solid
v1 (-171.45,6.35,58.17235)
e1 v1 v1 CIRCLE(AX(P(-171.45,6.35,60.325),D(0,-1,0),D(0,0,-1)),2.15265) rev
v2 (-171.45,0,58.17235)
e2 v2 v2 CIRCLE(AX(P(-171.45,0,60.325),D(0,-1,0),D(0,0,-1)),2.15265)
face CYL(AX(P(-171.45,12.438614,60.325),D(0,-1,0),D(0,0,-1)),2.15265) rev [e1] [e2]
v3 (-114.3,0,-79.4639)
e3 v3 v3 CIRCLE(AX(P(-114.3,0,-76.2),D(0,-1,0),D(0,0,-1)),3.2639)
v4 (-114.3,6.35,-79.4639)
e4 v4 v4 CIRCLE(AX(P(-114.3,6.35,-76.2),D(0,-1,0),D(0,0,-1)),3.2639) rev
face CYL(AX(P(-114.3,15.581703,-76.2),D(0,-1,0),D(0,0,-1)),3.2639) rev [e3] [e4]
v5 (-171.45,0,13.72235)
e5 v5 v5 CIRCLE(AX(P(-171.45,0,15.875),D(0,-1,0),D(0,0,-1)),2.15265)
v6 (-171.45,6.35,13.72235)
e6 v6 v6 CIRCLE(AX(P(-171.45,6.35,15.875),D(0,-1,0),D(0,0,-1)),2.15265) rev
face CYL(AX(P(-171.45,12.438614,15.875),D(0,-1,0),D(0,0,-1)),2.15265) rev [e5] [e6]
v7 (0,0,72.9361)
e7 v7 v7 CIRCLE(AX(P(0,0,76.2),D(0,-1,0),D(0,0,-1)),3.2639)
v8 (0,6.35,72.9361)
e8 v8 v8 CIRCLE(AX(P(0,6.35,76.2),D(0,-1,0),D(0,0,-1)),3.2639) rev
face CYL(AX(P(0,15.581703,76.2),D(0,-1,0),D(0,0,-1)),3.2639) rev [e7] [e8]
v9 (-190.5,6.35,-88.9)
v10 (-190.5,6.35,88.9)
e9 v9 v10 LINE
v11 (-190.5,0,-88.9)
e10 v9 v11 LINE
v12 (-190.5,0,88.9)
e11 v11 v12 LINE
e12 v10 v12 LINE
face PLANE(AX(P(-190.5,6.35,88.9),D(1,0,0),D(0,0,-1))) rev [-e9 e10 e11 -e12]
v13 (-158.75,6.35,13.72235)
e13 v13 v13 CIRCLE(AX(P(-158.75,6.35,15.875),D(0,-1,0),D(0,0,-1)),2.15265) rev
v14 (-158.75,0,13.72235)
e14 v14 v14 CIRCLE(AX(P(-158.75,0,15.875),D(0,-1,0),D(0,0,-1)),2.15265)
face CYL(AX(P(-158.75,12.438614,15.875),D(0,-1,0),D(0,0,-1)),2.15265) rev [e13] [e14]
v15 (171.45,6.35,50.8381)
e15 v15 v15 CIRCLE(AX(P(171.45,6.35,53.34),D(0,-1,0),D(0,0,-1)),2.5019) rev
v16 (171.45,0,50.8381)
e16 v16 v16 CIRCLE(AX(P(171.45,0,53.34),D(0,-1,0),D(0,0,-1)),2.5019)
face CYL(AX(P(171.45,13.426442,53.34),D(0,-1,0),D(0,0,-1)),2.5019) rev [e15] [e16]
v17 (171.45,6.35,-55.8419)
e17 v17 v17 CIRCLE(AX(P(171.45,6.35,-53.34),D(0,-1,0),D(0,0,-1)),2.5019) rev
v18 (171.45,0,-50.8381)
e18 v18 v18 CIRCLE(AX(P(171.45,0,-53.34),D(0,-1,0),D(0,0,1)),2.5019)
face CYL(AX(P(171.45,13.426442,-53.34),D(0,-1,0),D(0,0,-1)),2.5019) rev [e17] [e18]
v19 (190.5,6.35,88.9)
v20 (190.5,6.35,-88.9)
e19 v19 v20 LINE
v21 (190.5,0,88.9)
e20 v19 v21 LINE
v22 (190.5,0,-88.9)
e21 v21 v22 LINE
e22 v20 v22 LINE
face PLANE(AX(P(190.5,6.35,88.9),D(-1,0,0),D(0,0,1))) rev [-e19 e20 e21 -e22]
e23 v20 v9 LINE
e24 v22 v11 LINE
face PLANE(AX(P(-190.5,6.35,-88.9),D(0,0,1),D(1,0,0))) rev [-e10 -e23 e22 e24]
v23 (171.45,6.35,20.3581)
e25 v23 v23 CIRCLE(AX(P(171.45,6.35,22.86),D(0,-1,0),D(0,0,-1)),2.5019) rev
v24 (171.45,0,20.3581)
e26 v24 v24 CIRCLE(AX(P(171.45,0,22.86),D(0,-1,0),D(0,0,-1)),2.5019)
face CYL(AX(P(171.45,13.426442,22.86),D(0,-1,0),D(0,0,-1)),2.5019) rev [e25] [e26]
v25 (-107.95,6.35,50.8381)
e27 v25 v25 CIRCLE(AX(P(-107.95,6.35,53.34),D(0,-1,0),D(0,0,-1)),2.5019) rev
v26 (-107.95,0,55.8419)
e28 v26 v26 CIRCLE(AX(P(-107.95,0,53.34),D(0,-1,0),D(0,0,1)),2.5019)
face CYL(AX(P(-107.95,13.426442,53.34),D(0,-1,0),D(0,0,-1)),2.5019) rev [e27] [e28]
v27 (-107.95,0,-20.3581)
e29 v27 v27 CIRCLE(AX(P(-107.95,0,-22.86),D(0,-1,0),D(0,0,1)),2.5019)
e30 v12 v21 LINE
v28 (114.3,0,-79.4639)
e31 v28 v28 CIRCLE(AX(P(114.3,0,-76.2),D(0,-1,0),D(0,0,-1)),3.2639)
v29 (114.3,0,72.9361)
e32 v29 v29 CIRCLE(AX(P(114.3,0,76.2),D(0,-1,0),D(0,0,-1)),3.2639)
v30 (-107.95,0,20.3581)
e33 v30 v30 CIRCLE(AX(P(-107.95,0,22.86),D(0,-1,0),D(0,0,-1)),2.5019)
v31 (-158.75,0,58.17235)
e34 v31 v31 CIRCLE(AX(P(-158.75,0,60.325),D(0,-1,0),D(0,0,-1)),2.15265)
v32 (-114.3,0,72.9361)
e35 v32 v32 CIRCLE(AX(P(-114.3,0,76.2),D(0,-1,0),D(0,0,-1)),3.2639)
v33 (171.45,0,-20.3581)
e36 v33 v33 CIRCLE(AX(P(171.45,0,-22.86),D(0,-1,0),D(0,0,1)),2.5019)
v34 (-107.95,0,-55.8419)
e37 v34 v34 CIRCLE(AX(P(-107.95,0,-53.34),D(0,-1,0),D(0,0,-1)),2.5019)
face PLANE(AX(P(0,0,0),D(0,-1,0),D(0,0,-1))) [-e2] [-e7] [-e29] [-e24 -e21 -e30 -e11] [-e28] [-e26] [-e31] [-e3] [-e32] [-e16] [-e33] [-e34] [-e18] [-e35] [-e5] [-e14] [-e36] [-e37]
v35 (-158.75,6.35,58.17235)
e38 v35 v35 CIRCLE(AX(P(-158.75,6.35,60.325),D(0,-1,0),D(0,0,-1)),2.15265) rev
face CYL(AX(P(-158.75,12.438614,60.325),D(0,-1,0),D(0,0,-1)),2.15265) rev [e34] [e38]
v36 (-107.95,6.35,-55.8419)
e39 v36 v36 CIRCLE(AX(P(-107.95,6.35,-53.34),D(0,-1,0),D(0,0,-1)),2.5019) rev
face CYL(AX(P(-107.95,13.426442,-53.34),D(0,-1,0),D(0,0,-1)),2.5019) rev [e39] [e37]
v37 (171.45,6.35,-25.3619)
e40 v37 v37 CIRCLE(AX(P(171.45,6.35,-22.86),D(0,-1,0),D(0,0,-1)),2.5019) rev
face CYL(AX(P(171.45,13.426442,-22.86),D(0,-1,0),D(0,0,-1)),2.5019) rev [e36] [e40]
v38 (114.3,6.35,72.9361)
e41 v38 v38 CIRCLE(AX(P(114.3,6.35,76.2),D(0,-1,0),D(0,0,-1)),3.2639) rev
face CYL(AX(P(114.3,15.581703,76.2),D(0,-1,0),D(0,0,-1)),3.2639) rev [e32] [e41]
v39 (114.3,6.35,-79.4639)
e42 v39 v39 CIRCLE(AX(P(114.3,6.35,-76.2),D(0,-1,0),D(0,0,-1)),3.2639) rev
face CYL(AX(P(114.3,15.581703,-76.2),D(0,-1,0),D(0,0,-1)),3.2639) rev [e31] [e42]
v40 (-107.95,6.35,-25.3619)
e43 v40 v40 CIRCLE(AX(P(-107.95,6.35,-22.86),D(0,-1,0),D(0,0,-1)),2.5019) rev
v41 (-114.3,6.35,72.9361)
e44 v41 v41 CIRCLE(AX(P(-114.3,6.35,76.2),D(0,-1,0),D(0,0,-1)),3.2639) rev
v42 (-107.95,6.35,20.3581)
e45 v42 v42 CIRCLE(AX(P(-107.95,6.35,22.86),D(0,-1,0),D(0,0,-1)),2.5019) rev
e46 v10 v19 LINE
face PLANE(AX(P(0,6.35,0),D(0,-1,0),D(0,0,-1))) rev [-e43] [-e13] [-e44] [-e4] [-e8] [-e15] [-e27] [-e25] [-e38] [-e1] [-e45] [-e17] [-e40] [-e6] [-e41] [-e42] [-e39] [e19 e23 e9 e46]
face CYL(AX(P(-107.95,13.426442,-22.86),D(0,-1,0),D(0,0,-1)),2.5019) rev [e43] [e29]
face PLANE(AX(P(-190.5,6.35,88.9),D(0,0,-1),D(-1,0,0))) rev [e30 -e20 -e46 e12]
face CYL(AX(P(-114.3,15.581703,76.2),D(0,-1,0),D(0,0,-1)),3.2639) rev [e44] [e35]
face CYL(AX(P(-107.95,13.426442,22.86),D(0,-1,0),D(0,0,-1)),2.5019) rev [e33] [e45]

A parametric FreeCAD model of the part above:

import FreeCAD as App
import Part
import Sketcher
Q = App.Units.Quantity


def add_polygon(sketch, points):
    """Adds a closed chain of lines whose ends are joined by coincident constraints."""
    first, n = sketch.GeometryCount, len(points)
    for a, b in zip(points, points[1:] + points[:1]):
        sketch.addGeometry(Part.LineSegment(App.Vector(*a, 0), App.Vector(*b, 0)), False)
    for i in range(n):
        sketch.addConstraint(Sketcher.Constraint("Coincident", first + i, 2, first + (i + 1) % n, 1))

doc = App.newDocument("Part")
body = doc.addObject("PartDesign::Body", "Body")

sketch1 = doc.addObject("Sketcher::SketchObject", "Sketch")
body.addObject(sketch1)
sketch1.AttachmentSupport = (doc.XZ_Plane, [""])
sketch1.MapMode = "FlatFace"
add_polygon(sketch1, [(-190.5, -88.9), (-190.5, 88.9), (190.5, 88.9), (190.5, -88.9)])
sketch1.addConstraint(Sketcher.Constraint("Vertical", 0))
sketch1.addConstraint(Sketcher.Constraint("Horizontal", 1))
sketch1.addConstraint(Sketcher.Constraint("Vertical", 2))
sketch1.addConstraint(Sketcher.Constraint("Horizontal", 3))
sketch1.addConstraint(Sketcher.Constraint("Symmetric", 0, 2, 2, 2, -1, 1))
sketch1.addConstraint(Sketcher.Constraint("DistanceX", 1, 1, 1, 2, Q("15 in")))
sketch1.addConstraint(Sketcher.Constraint("DistanceY", 0, 1, 0, 2, Q("7 in")))
pad1 = doc.addObject("PartDesign::Pad", "Pad")
body.addObject(pad1)
pad1.Profile = sketch1
pad1.Length = Q("0.25 in")
pad1.Reversed = True

sketch2 = doc.addObject("Sketcher::SketchObject", "Sketch001")
body.addObject(sketch2)
sketch2.AttachmentSupport = (doc.XZ_Plane, [""])
sketch2.MapMode = "FlatFace"
sketch2.addGeometry(Part.Circle(App.Vector(0, 76.2, 0), App.Vector(0, 0, 1), 3.2639), False)
sketch2.addGeometry(Part.Circle(App.Vector(-114.3, 76.2, 0), App.Vector(0, 0, 1), 3.2639), False)
sketch2.addGeometry(Part.Circle(App.Vector(114.3, 76.2, 0), App.Vector(0, 0, 1), 3.2639), False)
sketch2.addGeometry(Part.Circle(App.Vector(-114.3, -76.2, 0), App.Vector(0, 0, 1), 3.2639), False)
sketch2.addGeometry(Part.Circle(App.Vector(114.3, -76.2, 0), App.Vector(0, 0, 1), 3.2639), False)
sketch2.addConstraint(Sketcher.Constraint("Equal", 0, 1))
sketch2.addConstraint(Sketcher.Constraint("Equal", 1, 2))
sketch2.addConstraint(Sketcher.Constraint("Equal", 2, 3))
sketch2.addConstraint(Sketcher.Constraint("Equal", 3, 4))
sketch2.addConstraint(Sketcher.Constraint("Symmetric", 2, 3, 3, 3, -1, 1))
sketch2.addConstraint(Sketcher.Constraint("Symmetric", 1, 3, 4, 3, -1, 1))
sketch2.addConstraint(Sketcher.Constraint("Symmetric", 1, 3, 2, 3, -2))
sketch2.addConstraint(Sketcher.Constraint("PointOnObject", 0, 3, -2))
sketch2.addConstraint(Sketcher.Constraint("Horizontal", 0, 3, 1, 3))
sketch2.addConstraint(Sketcher.Constraint("Diameter", 0, Q("0.257 in")))
sketch2.addConstraint(Sketcher.Constraint("DistanceY", -1, 1, 0, 3, Q("3 in")))
sketch2.addConstraint(Sketcher.Constraint("DistanceX", 1, 3, 2, 3, Q("9 in")))
pocket1 = doc.addObject("PartDesign::Pocket", "Pocket")
body.addObject(pocket1)
pocket1.Profile = sketch2
pocket1.Length = Q("0.25 in")

sketch3 = doc.addObject("Sketcher::SketchObject", "Sketch002")
body.addObject(sketch3)
sketch3.AttachmentSupport = (doc.XZ_Plane, [""])
sketch3.MapMode = "FlatFace"
sketch3.addGeometry(Part.Circle(App.Vector(171.45, 53.34, 0), App.Vector(0, 0, 1), 2.5019), False)
sketch3.addGeometry(Part.Circle(App.Vector(171.45, 22.86, 0), App.Vector(0, 0, 1), 2.5019), False)
sketch3.addGeometry(Part.Circle(App.Vector(-107.95, 53.34, 0), App.Vector(0, 0, 1), 2.5019), False)
sketch3.addGeometry(Part.Circle(App.Vector(-107.95, 22.86, 0), App.Vector(0, 0, 1), 2.5019), False)
sketch3.addGeometry(Part.Circle(App.Vector(171.45, -53.34, 0), App.Vector(0, 0, 1), 2.5019), False)
sketch3.addGeometry(Part.Circle(App.Vector(171.45, -22.86, 0), App.Vector(0, 0, 1), 2.5019), False)
sketch3.addGeometry(Part.Circle(App.Vector(-107.95, -22.86, 0), App.Vector(0, 0, 1), 2.5019), False)
sketch3.addGeometry(Part.Circle(App.Vector(-107.95, -53.34, 0), App.Vector(0, 0, 1), 2.5019), False)
sketch3.addConstraint(Sketcher.Constraint("Equal", 0, 1))
sketch3.addConstraint(Sketcher.Constraint("Equal", 1, 2))
sketch3.addConstraint(Sketcher.Constraint("Equal", 2, 3))
sketch3.addConstraint(Sketcher.Constraint("Equal", 3, 4))
sketch3.addConstraint(Sketcher.Constraint("Equal", 4, 5))
sketch3.addConstraint(Sketcher.Constraint("Equal", 5, 6))
sketch3.addConstraint(Sketcher.Constraint("Equal", 6, 7))
sketch3.addConstraint(Sketcher.Constraint("Symmetric", 0, 3, 4, 3, -1))
sketch3.addConstraint(Sketcher.Constraint("Symmetric", 1, 3, 5, 3, -1))
sketch3.addConstraint(Sketcher.Constraint("Symmetric", 3, 3, 6, 3, -1))
sketch3.addConstraint(Sketcher.Constraint("Symmetric", 2, 3, 7, 3, -1))
sketch3.addConstraint(Sketcher.Constraint("Horizontal", 0, 3, 2, 3))
sketch3.addConstraint(Sketcher.Constraint("Horizontal", 1, 3, 3, 3))
sketch3.addConstraint(Sketcher.Constraint("Vertical", 0, 3, 1, 3))
sketch3.addConstraint(Sketcher.Constraint("Vertical", 2, 3, 3, 3))
sketch3.addConstraint(Sketcher.Constraint("Diameter", 0, Q("0.197 in")))
sketch3.addConstraint(Sketcher.Constraint("DistanceX", 2, 3, 0, 3, Q("11 in")))
sketch3.addConstraint(Sketcher.Constraint("DistanceY", 4, 3, 1, 3, Q("3 in")))
sketch3.addConstraint(Sketcher.Constraint("DistanceY", -1, 1, 0, 3, Q("2.1 in")))
sketch3.addConstraint(Sketcher.Constraint("DistanceX", -1, 1, 0, 3, Q("6.75 in")))
pocket2 = doc.addObject("PartDesign::Pocket", "Pocket001")
body.addObject(pocket2)
pocket2.Profile = sketch3
pocket2.Length = Q("0.25 in")

sketch4 = doc.addObject("Sketcher::SketchObject", "Sketch003")
body.addObject(sketch4)
sketch4.AttachmentSupport = (doc.XZ_Plane, [""])
sketch4.MapMode = "FlatFace"
sketch4.addGeometry(Part.Circle(App.Vector(-171.45, 60.325, 0), App.Vector(0, 0, 1), 2.15265), False)
sketch4.addGeometry(Part.Circle(App.Vector(-158.75, 60.325, 0), App.Vector(0, 0, 1), 2.15265), False)
sketch4.addGeometry(Part.Circle(App.Vector(-171.45, 15.875, 0), App.Vector(0, 0, 1), 2.15265), False)
sketch4.addGeometry(Part.Circle(App.Vector(-158.75, 15.875, 0), App.Vector(0, 0, 1), 2.15265), False)
sketch4.addConstraint(Sketcher.Constraint("Equal", 0, 1))
sketch4.addConstraint(Sketcher.Constraint("Equal", 1, 2))
sketch4.addConstraint(Sketcher.Constraint("Equal", 2, 3))
sketch4.addConstraint(Sketcher.Constraint("Horizontal", 0, 3, 1, 3))
sketch4.addConstraint(Sketcher.Constraint("Horizontal", 2, 3, 3, 3))
sketch4.addConstraint(Sketcher.Constraint("Vertical", 0, 3, 2, 3))
sketch4.addConstraint(Sketcher.Constraint("Vertical", 1, 3, 3, 3))
sketch4.addConstraint(Sketcher.Constraint("Diameter", 0, Q("0.1695 in")))
sketch4.addConstraint(Sketcher.Constraint("DistanceX", 0, 3, 1, 3, Q("0.5 in")))
sketch4.addConstraint(Sketcher.Constraint("DistanceX", 0, 3, -1, 1, Q("6.75 in")))
sketch4.addConstraint(Sketcher.Constraint("DistanceY", 2, 3, 0, 3, Q("1.75 in")))
sketch4.addConstraint(Sketcher.Constraint("DistanceY", -1, 1, 0, 3, Q("2.375 in")))
pocket3 = doc.addObject("PartDesign::Pocket", "Pocket002")
body.addObject(pocket3)
pocket3.Profile = sketch4
pocket3.Length = Q("0.25 in")

doc.recompute()
